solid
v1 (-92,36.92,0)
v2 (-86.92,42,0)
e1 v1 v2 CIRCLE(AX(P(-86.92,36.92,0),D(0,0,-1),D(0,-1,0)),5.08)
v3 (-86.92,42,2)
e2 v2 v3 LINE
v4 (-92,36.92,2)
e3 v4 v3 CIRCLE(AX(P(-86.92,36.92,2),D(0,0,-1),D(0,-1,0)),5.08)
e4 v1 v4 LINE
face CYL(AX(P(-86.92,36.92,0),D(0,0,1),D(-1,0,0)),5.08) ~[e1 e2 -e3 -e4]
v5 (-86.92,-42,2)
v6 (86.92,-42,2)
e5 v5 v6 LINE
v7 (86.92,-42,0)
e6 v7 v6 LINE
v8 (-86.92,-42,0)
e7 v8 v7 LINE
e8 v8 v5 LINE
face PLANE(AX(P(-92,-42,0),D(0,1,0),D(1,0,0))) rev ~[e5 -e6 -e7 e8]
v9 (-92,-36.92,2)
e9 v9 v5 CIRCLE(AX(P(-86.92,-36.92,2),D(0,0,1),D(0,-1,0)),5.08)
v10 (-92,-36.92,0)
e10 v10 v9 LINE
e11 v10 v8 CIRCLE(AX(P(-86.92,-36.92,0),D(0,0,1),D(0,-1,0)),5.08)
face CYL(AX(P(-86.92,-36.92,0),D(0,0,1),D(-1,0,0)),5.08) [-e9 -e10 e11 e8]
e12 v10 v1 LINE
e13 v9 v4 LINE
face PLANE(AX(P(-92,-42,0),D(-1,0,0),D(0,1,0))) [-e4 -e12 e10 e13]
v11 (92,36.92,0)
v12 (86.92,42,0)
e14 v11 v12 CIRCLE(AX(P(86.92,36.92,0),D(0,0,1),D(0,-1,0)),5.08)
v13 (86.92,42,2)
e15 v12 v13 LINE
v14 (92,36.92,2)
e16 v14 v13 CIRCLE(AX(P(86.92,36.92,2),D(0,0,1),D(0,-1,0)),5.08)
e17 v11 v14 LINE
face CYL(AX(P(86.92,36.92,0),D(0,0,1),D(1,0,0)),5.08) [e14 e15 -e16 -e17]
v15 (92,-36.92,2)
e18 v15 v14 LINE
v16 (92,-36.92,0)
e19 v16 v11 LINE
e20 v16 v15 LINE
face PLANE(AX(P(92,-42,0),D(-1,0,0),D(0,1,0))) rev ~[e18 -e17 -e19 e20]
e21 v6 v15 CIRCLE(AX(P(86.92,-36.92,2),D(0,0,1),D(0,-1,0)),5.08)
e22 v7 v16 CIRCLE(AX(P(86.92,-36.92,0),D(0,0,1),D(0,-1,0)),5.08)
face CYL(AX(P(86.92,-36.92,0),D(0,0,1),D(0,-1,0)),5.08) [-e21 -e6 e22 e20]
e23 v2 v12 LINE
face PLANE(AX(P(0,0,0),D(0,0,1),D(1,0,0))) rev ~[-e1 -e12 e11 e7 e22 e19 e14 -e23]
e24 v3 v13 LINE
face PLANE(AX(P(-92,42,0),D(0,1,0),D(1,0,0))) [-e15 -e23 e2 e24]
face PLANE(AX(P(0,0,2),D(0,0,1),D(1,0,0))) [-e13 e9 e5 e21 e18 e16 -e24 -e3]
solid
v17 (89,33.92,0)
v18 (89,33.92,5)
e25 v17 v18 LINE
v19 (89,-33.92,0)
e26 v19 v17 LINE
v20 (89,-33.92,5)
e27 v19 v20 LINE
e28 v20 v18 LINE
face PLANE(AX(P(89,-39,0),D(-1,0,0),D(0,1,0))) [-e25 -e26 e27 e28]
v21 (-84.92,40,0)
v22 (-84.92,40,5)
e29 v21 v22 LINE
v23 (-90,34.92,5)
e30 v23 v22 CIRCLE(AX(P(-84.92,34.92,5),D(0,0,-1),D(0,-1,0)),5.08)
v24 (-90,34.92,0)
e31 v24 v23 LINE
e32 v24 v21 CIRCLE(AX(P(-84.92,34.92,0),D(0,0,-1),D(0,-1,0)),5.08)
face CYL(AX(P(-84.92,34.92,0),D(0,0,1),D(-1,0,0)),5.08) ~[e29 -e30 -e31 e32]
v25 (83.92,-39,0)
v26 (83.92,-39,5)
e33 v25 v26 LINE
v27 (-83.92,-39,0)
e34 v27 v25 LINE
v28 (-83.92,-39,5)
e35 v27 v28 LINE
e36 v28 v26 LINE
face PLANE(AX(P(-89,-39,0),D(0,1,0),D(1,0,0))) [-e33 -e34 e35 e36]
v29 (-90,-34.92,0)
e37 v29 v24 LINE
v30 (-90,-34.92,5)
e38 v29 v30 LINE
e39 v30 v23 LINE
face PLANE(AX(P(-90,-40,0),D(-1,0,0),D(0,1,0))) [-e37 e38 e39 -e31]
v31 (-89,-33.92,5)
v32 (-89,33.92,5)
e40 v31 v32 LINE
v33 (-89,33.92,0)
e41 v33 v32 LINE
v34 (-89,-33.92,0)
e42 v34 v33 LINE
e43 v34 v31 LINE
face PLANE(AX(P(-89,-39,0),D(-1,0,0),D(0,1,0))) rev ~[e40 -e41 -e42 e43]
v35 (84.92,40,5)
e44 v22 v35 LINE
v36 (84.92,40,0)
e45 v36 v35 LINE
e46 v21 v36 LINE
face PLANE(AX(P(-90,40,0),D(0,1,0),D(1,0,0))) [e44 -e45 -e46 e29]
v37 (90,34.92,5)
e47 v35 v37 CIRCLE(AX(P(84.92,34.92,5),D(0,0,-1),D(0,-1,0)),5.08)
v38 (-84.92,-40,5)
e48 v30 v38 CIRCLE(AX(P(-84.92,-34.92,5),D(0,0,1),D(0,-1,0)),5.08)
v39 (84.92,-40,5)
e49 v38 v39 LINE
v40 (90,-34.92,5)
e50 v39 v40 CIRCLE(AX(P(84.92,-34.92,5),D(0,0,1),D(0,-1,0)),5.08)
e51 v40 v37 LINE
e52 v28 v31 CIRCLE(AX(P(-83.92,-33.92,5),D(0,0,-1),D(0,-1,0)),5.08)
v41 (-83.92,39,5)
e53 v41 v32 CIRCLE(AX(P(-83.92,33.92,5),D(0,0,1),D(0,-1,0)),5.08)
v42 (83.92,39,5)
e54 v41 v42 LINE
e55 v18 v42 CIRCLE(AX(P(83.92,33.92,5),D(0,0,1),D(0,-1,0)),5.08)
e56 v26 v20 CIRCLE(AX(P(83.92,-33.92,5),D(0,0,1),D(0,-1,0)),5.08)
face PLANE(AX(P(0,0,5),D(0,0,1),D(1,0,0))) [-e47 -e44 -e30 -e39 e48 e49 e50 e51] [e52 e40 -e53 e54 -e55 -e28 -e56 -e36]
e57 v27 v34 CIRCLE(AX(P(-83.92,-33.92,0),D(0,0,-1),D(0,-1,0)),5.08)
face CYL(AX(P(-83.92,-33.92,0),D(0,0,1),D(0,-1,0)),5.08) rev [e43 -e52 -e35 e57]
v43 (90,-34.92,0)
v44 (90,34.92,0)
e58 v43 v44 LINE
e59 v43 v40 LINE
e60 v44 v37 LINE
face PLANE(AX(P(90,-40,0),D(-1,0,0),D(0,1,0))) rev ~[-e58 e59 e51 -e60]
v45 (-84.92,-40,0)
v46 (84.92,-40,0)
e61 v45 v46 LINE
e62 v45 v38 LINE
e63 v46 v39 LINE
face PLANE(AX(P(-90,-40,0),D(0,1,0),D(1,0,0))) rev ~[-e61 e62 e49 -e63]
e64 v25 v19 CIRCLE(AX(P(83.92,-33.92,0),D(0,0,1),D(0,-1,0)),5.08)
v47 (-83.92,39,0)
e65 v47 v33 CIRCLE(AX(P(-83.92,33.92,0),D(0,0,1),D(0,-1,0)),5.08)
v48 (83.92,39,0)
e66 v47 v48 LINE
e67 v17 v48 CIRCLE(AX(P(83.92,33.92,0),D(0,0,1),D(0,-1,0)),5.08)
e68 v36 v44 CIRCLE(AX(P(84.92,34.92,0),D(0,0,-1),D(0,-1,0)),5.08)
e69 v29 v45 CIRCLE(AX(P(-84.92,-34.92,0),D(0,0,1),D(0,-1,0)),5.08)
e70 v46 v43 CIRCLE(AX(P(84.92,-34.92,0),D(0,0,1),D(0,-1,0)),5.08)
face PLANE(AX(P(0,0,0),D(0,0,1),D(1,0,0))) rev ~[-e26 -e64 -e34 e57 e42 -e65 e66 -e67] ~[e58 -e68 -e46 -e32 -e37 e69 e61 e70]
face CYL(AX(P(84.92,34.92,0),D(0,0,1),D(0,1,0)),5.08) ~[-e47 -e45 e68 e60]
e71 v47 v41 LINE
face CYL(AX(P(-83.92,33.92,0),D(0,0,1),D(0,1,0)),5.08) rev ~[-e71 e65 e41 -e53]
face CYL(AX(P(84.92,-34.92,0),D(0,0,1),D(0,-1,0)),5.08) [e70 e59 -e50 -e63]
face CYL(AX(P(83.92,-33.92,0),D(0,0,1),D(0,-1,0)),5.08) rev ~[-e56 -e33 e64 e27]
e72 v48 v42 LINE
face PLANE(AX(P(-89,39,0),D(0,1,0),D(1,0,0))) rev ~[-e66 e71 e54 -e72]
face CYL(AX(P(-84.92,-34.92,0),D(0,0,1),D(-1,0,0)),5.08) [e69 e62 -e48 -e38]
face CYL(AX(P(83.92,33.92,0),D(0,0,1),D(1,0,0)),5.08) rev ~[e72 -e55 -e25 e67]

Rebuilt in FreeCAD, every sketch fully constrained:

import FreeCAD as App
import Part
import Sketcher

V = App.Vector


def edges_at(feature, points):
    """Names of the edges that pass closest to the given points."""
    edges = feature.Shape.Edges
    near = lambda p: min(range(len(edges)), key=lambda i: edges[i].distToShape(Part.Vertex(*p))[0])
    return sorted({f"Edge{near(p) + 1}" for p in points})

doc = App.newDocument("Part")
body = doc.addObject("PartDesign::Body", "Body")

sketch1 = doc.addObject("Sketcher::SketchObject", "Sketch")
body.addObject(sketch1)
sketch1.AttachmentSupport = (doc.XY_Plane, [""])
sketch1.MapMode = "FlatFace"
sketch1.addGeometry(Part.LineSegment(V(-92, 42, 0), V(-92, -42, 0)), False)
sketch1.addGeometry(Part.LineSegment(V(-92, -42, 0), V(92, -42, 0)), False)
sketch1.addGeometry(Part.LineSegment(V(92, -42, 0), V(92, 42, 0)), False)
sketch1.addGeometry(Part.LineSegment(V(92, 42, 0), V(-92, 42, 0)), False)
sketch1.addConstraint(Sketcher.Constraint("Coincident", 0, 2, 1, 1))
sketch1.addConstraint(Sketcher.Constraint("Coincident", 1, 2, 2, 1))
sketch1.addConstraint(Sketcher.Constraint("Coincident", 2, 2, 3, 1))
sketch1.addConstraint(Sketcher.Constraint("Coincident", 3, 2, 0, 1))
sketch1.addConstraint(Sketcher.Constraint("Vertical", 0))
sketch1.addConstraint(Sketcher.Constraint("Horizontal", 1))
sketch1.addConstraint(Sketcher.Constraint("Vertical", 2))
sketch1.addConstraint(Sketcher.Constraint("Horizontal", 3))
sketch1.addConstraint(Sketcher.Constraint("Symmetric", 0, 2, 2, 2, -1, 1))
sketch1.addConstraint(Sketcher.Constraint("DistanceX", 1, 1, 1, 2, 184.0))
sketch1.addConstraint(Sketcher.Constraint("DistanceY", 0, 2, 0, 1, 84.0))
pad1 = doc.addObject("PartDesign::Pad", "Pad")
body.addObject(pad1)
pad1.Profile = sketch1
pad1.Length = 2
doc.recompute()

fillet = doc.addObject("PartDesign::Fillet", "Fillet")
body.addObject(fillet)
fillet.Base = (pad1, edges_at(pad1, [
    (-92, 42, 1),
    (-92, -42, 1),
    (92, 42, 1),
    (92, -42, 1),
]))
fillet.Radius = 5.08
body2 = doc.addObject("PartDesign::Body", "Body001")

sketch2 = doc.addObject("Sketcher::SketchObject", "Sketch001")
body2.addObject(sketch2)
sketch2.AttachmentSupport = (doc.getObject("XY_Plane001"), [""])
sketch2.MapMode = "FlatFace"
sketch2.addGeometry(Part.LineSegment(V(-90, 40, 0), V(-90, -40, 0)), False)
sketch2.addGeometry(Part.LineSegment(V(-90, -40, 0), V(90, -40, 0)), False)
sketch2.addGeometry(Part.LineSegment(V(90, -40, 0), V(90, 40, 0)), False)
sketch2.addGeometry(Part.LineSegment(V(90, 40, 0), V(-90, 40, 0)), False)
sketch2.addGeometry(Part.LineSegment(V(89, -39, 0), V(-89, -39, 0)), False)
sketch2.addGeometry(Part.LineSegment(V(-89, -39, 0), V(-89, 39, 0)), False)
sketch2.addGeometry(Part.LineSegment(V(-89, 39, 0), V(89, 39, 0)), False)
sketch2.addGeometry(Part.LineSegment(V(89, 39, 0), V(89, -39, 0)), False)
sketch2.addConstraint(Sketcher.Constraint("Coincident", 0, 2, 1, 1))
sketch2.addConstraint(Sketcher.Constraint("Coincident", 1, 2, 2, 1))
sketch2.addConstraint(Sketcher.Constraint("Coincident", 2, 2, 3, 1))
sketch2.addConstraint(Sketcher.Constraint("Coincident", 3, 2, 0, 1))
sketch2.addConstraint(Sketcher.Constraint("Coincident", 4, 2, 5, 1))
sketch2.addConstraint(Sketcher.Constraint("Coincident", 5, 2, 6, 1))
sketch2.addConstraint(Sketcher.Constraint("Coincident", 6, 2, 7, 1))
sketch2.addConstraint(Sketcher.Constraint("Coincident", 7, 2, 4, 1))
sketch2.addConstraint(Sketcher.Constraint("Vertical", 0))
sketch2.addConstraint(Sketcher.Constraint("Horizontal", 1))
sketch2.addConstraint(Sketcher.Constraint("Vertical", 2))
sketch2.addConstraint(Sketcher.Constraint("Horizontal", 3))
sketch2.addConstraint(Sketcher.Constraint("Horizontal", 4))
sketch2.addConstraint(Sketcher.Constraint("Vertical", 5))
sketch2.addConstraint(Sketcher.Constraint("Horizontal", 6))
sketch2.addConstraint(Sketcher.Constraint("Vertical", 7))
sketch2.addConstraint(Sketcher.Constraint("Symmetric", 0, 2, 2, 2, -1, 1))
sketch2.addConstraint(Sketcher.Constraint("Symmetric", 4, 2, 6, 2, -1, 1))
sketch2.addConstraint(Sketcher.Constraint("DistanceX", 1, 1, 1, 2, 180.0))
sketch2.addConstraint(Sketcher.Constraint("DistanceX", 4, 2, 4, 1, 178.0))
sketch2.addConstraint(Sketcher.Constraint("DistanceY", 0, 2, 0, 1, 80.0))
sketch2.addConstraint(Sketcher.Constraint("DistanceY", 5, 1, 5, 2, 78.0))
pad2 = doc.addObject("PartDesign::Pad", "Pad001")
body2.addObject(pad2)
pad2.Profile = sketch2
pad2.Length = 5
doc.recompute()

fillet2 = doc.addObject("PartDesign::Fillet", "Fillet001")
body2.addObject(fillet2)
fillet2.Base = (pad2, edges_at(pad2, [
    (-89, 39, 2.5),
    (-90, 40, 2.5),
    (-90, -40, 2.5),
    (-89, -39, 2.5),
    (90, 40, 2.5),
    (89, 39, 2.5),
    (90, -40, 2.5),
    (89, -39, 2.5),
]))
fillet2.Radius = 5.08

doc.recompute()
